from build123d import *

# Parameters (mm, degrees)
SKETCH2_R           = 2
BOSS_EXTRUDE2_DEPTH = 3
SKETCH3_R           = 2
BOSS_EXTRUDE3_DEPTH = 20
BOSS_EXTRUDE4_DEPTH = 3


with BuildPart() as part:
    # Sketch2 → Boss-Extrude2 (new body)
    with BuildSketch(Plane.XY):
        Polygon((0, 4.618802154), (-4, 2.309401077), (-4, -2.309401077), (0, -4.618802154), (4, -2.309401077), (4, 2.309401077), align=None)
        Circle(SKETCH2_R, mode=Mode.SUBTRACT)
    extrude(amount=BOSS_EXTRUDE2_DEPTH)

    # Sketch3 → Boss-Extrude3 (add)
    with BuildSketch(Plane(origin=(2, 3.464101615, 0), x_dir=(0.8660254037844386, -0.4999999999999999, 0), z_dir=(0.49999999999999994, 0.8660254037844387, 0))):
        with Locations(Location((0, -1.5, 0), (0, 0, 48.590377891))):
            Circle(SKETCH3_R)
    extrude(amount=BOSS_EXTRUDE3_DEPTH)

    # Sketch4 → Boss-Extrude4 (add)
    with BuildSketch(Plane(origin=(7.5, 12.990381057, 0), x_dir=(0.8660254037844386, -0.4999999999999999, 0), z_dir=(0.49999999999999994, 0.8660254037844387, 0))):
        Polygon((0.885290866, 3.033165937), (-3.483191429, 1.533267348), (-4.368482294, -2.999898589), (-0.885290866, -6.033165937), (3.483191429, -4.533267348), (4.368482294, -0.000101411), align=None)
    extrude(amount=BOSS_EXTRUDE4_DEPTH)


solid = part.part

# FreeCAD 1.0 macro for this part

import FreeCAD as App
import Part
import Sketcher
from FreeCAD import Vector
Q = App.Units.Quantity

doc = App.newDocument("Part")
body = doc.addObject("PartDesign::Body", "Body")

# Sketch on XY plane
sketch1 = body.newObject("Sketcher::SketchObject", "Sketch")
sketch1.AttachmentSupport = (doc.getObject("XY_Plane"), [""])
sketch1.MapMode = "FlatFace"
sketch1.addGeometry([
    Part.LineSegment(Vector(0, 4.6, 0), Vector(-4, 2.3, 0)),  # 0
    Part.LineSegment(Vector(-4, 2.3, 0), Vector(-4, -2.3, 0)),  # 1
    Part.LineSegment(Vector(-4, -2.3, 0), Vector(0, -4.6, 0)),  # 2
    Part.LineSegment(Vector(0, -4.6, 0), Vector(4, -2.3, 0)),  # 3
    Part.LineSegment(Vector(4, -2.3, 0), Vector(4, 2.3, 0)),  # 4
    Part.LineSegment(Vector(4, 2.3, 0), Vector(0, 4.6, 0)),  # 5
    Part.Circle(Vector(0, 0, 0), Vector(0, 0, 1), 2),  # 6
], False)
sketch1.addConstraint([
    Sketcher.Constraint("Coincident", 0, 2, 1, 1),
    Sketcher.Constraint("Coincident", 1, 2, 2, 1),
    Sketcher.Constraint("Coincident", 2, 2, 3, 1),
    Sketcher.Constraint("Coincident", 3, 2, 4, 1),
    Sketcher.Constraint("Coincident", 4, 2, 5, 1),
    Sketcher.Constraint("Coincident", 5, 2, 0, 1),
    Sketcher.Constraint("Vertical", 1),
    Sketcher.Constraint("Vertical", 4),
    Sketcher.Constraint("Coincident", 6, 3, -1, 1),
    Sketcher.Constraint("Symmetric", 0, 2, 3, 2, -1, 1),
    Sketcher.Constraint("Symmetric", 2, 2, 5, 2, -1, 1),
    Sketcher.Constraint("PointOnObject", 2, 2, -2),
    Sketcher.Constraint("Parallel", 2, 5),
    Sketcher.Constraint("Horizontal", 1, 2, 3, 2),
    Sketcher.Constraint("Diameter", 6, 4.0),
    Sketcher.Constraint("Angle", 0, Q("-150 deg")),
    Sketcher.Constraint("DistanceX", 0, 2, -1, 1, 4.0),
    Sketcher.Constraint("DistanceY", -1, 1, 0, 2, 2.309401),
])
pad1 = body.newObject("PartDesign::Pad", "Pad")
pad1.Profile = sketch1
pad1.Length = 3

# Sketch on an angled plane
sketch2 = body.newObject("Sketcher::SketchObject", "Sketch001")
sketch2.Placement = App.Placement(Vector(2, 3.464102, 0), App.Rotation(Vector(0.866025404, -0.5, 0), Vector(0, 0, -1), Vector(0.5, 0.866025404, 0), "ZXY"))
sketch2.addGeometry(Part.Circle(Vector(0, -1.5, 0), Vector(0, 0, 1), 2), False)
sketch2.addConstraint([
    Sketcher.Constraint("PointOnObject", 0, 3, -2),
    Sketcher.Constraint("Diameter", 0, 4.0),
    Sketcher.Constraint("DistanceY", 0, 3, -1, 1, 1.5),
])
pad2 = body.newObject("PartDesign::Pad", "Pad001")
pad2.Profile = sketch2
pad2.Length = 20

# Sketch on an angled plane
sketch3 = body.newObject("Sketcher::SketchObject", "Sketch002")
sketch3.Placement = App.Placement(Vector(7.5, 12.990381, 0), App.Rotation(Vector(0.866025404, -0.5, 0), Vector(0, 0, -1), Vector(0.5, 0.866025404, 0), "ZXY"))
sketch3.addGeometry([
    Part.LineSegment(Vector(0.9, 3, 0), Vector(-3.5, 1.5, 0)),  # 0
    Part.LineSegment(Vector(-3.5, 1.5, 0), Vector(-4.4, -3, 0)),  # 1
    Part.LineSegment(Vector(-4.4, -3, 0), Vector(-0.9, -6, 0)),  # 2
    Part.LineSegment(Vector(-0.9, -6, 0), Vector(3.5, -4.5, 0)),  # 3
    Part.LineSegment(Vector(3.5, -4.5, 0), Vector(4.4, 0, 0)),  # 4
    Part.LineSegment(Vector(4.4, 0, 0), Vector(0.9, 3, 0)),  # 5
], False)
sketch3.addConstraint([
    Sketcher.Constraint("Coincident", 0, 2, 1, 1),
    Sketcher.Constraint("Coincident", 1, 2, 2, 1),
    Sketcher.Constraint("Coincident", 2, 2, 3, 1),
    Sketcher.Constraint("Coincident", 3, 2, 4, 1),
    Sketcher.Constraint("Coincident", 4, 2, 5, 1),
    Sketcher.Constraint("Coincident", 5, 2, 0, 1),
    Sketcher.Constraint("Parallel", 0, 3),
    Sketcher.Constraint("Parallel", 1, 4),
    Sketcher.Constraint("Parallel", 2, 5),
    Sketcher.Constraint("Equal", 0, 1),
    Sketcher.Constraint("Equal", 1, 2),
    Sketcher.Constraint("Equal", 2, 3),
    Sketcher.Constraint("DistanceY", 1, 2, -1, 1, 2.999899),
    Sketcher.Constraint("DistanceY", 4, 2, -1, 1, 0.000101),
    Sketcher.Constraint("DistanceX", 0, 2, 2, 2, 2.597901),
    Sketcher.Constraint("DistanceY", 2, 2, 3, 2, 1.499899),
    Sketcher.Constraint("DistanceX", 0, 2, -1, 1, 3.483191),
    Sketcher.Constraint("DistanceX", -1, 1, 3, 2, 3.483191),
])
pad3 = body.newObject("PartDesign::Pad", "Pad002")
pad3.Profile = sketch3
pad3.Length = 3

doc.recompute()
